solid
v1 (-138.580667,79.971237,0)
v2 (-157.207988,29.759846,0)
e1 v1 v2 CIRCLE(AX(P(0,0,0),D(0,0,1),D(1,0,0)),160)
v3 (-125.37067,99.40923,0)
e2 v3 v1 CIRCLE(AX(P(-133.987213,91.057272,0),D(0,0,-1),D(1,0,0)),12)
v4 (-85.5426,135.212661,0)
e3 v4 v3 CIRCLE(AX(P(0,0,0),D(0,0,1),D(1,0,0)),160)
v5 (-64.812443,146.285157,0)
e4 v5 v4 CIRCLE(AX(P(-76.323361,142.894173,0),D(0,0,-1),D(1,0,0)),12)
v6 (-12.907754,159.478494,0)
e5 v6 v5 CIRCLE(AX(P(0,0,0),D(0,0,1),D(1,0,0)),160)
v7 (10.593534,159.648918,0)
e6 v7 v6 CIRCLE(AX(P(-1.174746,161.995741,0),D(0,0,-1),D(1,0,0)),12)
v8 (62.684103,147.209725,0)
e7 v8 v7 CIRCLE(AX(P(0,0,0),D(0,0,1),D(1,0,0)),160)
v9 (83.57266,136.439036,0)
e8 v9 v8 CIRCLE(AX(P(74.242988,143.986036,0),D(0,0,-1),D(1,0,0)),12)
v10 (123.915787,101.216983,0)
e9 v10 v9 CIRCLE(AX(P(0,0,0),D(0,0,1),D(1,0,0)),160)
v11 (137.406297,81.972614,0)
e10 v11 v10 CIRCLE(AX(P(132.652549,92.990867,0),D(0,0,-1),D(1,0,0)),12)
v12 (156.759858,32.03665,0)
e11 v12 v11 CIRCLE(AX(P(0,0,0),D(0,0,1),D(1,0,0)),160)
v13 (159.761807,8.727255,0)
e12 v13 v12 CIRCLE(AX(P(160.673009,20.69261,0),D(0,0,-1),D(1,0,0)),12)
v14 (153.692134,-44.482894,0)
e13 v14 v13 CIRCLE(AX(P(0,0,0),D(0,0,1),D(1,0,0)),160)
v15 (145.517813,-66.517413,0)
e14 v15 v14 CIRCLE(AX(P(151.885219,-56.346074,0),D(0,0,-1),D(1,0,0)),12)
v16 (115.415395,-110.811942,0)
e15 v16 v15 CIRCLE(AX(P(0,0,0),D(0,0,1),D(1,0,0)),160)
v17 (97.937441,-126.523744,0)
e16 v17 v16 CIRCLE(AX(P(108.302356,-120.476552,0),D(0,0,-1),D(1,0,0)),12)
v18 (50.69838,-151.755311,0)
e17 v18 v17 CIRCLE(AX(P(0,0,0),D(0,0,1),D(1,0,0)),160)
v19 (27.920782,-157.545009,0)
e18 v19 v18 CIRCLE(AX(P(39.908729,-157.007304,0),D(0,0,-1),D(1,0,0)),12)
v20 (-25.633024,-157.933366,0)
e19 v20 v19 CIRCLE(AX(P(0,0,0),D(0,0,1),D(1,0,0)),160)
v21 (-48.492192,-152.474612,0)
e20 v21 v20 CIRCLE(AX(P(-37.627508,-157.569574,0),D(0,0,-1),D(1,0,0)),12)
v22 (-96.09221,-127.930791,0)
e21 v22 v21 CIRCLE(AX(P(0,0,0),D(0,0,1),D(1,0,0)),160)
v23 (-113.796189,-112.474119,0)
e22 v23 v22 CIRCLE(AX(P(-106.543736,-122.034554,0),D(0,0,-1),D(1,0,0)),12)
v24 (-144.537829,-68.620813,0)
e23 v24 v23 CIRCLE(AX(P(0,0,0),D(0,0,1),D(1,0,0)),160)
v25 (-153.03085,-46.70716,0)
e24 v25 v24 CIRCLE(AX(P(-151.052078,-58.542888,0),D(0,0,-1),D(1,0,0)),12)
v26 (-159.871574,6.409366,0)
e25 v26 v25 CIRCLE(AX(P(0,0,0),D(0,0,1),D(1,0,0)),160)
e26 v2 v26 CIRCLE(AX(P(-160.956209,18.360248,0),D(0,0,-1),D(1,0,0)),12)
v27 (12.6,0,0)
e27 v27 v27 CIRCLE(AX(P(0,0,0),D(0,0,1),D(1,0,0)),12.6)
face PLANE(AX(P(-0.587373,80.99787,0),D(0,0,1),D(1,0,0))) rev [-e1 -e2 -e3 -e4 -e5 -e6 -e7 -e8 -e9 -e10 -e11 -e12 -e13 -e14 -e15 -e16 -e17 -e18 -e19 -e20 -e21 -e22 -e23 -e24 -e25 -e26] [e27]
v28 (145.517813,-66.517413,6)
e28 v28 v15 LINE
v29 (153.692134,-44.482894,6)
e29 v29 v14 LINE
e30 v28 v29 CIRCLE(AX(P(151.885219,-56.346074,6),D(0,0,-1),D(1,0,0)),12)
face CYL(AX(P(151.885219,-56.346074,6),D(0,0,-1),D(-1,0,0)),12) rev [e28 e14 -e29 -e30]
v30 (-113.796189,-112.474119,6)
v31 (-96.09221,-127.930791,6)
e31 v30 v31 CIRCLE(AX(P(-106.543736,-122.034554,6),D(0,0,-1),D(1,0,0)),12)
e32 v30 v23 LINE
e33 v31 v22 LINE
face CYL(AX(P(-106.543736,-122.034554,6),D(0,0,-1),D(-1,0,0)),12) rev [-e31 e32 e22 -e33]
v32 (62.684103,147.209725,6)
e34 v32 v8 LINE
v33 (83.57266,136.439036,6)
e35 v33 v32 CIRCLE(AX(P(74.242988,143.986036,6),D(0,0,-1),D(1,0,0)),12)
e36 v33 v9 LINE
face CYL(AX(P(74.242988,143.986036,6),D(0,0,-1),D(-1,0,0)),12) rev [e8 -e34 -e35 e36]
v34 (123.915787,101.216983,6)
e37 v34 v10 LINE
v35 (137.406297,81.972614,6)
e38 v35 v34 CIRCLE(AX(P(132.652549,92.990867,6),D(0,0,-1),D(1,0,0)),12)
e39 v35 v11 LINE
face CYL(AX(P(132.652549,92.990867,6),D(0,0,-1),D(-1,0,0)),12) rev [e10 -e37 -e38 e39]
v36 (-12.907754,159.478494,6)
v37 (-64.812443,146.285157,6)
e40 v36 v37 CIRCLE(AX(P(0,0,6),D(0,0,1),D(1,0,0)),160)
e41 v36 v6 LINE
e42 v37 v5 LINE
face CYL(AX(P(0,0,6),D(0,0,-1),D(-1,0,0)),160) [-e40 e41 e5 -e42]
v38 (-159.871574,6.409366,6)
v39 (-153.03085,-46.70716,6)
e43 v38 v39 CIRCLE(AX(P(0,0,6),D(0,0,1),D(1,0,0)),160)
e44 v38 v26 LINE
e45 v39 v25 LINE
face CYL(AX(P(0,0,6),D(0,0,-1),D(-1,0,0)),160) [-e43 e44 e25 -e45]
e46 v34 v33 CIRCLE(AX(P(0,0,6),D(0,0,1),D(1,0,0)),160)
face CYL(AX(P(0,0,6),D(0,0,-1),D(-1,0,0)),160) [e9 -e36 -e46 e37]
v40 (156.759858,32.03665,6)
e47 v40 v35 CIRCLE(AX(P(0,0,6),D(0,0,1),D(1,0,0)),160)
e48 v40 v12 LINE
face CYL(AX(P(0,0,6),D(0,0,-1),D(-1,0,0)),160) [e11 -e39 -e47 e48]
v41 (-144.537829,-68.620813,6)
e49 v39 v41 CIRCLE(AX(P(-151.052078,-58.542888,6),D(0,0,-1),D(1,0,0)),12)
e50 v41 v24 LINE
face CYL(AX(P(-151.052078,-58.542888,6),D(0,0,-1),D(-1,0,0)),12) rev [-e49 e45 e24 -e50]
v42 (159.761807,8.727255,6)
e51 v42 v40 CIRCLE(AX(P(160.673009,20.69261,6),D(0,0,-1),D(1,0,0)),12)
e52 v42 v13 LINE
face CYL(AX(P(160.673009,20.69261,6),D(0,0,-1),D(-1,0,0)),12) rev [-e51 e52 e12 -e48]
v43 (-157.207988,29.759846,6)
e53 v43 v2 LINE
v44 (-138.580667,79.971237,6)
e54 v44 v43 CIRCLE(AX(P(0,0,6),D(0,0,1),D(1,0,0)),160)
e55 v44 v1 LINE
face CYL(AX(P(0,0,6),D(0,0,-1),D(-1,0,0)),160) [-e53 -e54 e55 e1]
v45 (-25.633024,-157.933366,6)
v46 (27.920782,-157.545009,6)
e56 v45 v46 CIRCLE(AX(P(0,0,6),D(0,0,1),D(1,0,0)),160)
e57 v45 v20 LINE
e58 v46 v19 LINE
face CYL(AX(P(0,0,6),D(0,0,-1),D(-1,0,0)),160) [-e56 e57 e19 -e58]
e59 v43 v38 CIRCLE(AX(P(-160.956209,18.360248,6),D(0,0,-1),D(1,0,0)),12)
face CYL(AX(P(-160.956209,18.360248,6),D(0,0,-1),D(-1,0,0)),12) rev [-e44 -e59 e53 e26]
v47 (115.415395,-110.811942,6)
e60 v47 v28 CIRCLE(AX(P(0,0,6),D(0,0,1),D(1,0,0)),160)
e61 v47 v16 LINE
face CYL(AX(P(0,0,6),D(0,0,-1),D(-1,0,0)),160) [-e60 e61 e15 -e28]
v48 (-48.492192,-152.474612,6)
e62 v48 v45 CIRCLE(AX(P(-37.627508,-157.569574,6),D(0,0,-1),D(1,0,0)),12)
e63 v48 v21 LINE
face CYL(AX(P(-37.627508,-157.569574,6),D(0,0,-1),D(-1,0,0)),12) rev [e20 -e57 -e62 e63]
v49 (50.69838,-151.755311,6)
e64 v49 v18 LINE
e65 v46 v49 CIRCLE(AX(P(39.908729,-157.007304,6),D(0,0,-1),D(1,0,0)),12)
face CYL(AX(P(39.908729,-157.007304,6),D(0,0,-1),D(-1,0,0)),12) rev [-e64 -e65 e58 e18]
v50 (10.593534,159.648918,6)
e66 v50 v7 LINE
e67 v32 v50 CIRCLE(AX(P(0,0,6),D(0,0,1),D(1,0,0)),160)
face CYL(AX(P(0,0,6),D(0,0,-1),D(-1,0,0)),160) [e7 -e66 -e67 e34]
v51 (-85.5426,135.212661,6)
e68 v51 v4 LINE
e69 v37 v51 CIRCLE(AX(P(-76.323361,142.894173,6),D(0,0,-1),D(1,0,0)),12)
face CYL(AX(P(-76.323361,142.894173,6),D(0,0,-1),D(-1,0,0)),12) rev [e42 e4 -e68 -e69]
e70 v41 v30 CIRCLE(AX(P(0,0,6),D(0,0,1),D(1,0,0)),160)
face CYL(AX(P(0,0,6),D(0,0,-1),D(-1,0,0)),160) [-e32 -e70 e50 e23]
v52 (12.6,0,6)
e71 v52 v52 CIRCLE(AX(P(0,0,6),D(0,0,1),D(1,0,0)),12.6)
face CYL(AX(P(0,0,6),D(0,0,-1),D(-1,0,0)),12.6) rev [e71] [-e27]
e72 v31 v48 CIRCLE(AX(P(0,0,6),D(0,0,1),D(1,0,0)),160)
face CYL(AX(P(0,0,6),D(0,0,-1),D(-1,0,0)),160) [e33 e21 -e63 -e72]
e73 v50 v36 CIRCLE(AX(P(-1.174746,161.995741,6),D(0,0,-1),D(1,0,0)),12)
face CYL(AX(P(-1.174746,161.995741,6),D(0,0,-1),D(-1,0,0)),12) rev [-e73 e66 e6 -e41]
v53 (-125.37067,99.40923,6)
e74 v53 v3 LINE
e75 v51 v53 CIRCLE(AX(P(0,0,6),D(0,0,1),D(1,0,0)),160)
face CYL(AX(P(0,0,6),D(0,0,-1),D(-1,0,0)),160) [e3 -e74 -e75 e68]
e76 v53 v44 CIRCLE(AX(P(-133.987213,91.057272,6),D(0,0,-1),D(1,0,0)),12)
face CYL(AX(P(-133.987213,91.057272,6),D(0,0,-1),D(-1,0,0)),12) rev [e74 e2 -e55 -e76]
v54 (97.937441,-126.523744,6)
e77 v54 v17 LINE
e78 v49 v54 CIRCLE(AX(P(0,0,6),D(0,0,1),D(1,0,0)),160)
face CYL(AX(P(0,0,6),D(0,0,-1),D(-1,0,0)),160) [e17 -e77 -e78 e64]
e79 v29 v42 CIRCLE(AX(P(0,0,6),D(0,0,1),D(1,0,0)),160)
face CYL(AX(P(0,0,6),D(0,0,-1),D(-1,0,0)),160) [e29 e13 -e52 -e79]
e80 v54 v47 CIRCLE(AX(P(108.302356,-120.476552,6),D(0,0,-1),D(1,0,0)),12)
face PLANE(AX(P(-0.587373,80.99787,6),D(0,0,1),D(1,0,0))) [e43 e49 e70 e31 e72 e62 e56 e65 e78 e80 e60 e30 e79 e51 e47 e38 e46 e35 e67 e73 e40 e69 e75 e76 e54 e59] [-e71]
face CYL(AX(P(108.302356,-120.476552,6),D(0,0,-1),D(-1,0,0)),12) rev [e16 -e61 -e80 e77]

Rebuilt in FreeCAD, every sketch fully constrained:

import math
import FreeCAD as App
import Part
import Sketcher
from FreeCAD import Vector

doc = App.newDocument("Part")
body = doc.addObject("PartDesign::Body", "Body")

# Sketch on XY plane
sketch1 = body.newObject("Sketcher::SketchObject", "Sketch")
sketch1.AttachmentSupport = (doc.getObject("XY_Plane"), [""])
sketch1.MapMode = "FlatFace"
sketch1.addGeometry(Part.ArcOfCircle(Part.Circle(Vector(0, 0, 0), Vector(0, 0, 1), 160), math.radians(122.32), math.radians(141.59)), False)
sketch1.addGeometry(Part.ArcOfCircle(Part.Circle(Vector(-134, 91, 0), Vector(0, 0, 1), 12), math.radians(-113), math.radians(44)), False)
sketch1.addGeometry(Part.ArcOfCircle(Part.Circle(Vector(0, 0, 0), Vector(0, 0, 1), 160), math.radians(150.01), math.radians(169.28)), False)
sketch1.addGeometry(Part.ArcOfCircle(Part.Circle(Vector(-161, 18, 0), Vector(0, 0, 1), 12), math.radians(-85), math.radians(72)), False)
sketch1.addGeometry(Part.ArcOfCircle(Part.Circle(Vector(0, 0, 0), Vector(0, 0, 1), 160), math.radians(177.7), math.radians(196.97)), False)
sketch1.addGeometry(Part.ArcOfCircle(Part.Circle(Vector(-151, -59, 0), Vector(0, 0, 1), 12), math.radians(-57), math.radians(99)), False)
sketch1.addGeometry(Part.ArcOfCircle(Part.Circle(Vector(0, 0, 0), Vector(0, 0, 1), 160), math.radians(-154.6), math.radians(-135.33)), False)
sketch1.addGeometry(Part.ArcOfCircle(Part.Circle(Vector(-107, -122, 0), Vector(0, 0, 1), 12), math.radians(-29), math.radians(127)), False)
sketch1.addGeometry(Part.ArcOfCircle(Part.Circle(Vector(0, 0, 0), Vector(0, 0, 1), 160), math.radians(-126.91), math.radians(-107.64)), False)
sketch1.addGeometry(Part.ArcOfCircle(Part.Circle(Vector(-38, -158, 0), Vector(0, 0, 1), 12), math.radians(-2), math.radians(155)), False)
sketch1.addGeometry(Part.ArcOfCircle(Part.Circle(Vector(0, 0, 0), Vector(0, 0, 1), 160), math.radians(-99.22), math.radians(-79.95)), False)
sketch1.addGeometry(Part.ArcOfCircle(Part.Circle(Vector(40, -157, 0), Vector(0, 0, 1), 12), math.radians(26), math.radians(183)), False)
sketch1.addGeometry(Part.ArcOfCircle(Part.Circle(Vector(0, 0, 0), Vector(0, 0, 1), 160), math.radians(-71.53), math.radians(-52.26)), False)
sketch1.addGeometry(Part.ArcOfCircle(Part.Circle(Vector(108, -120, 0), Vector(0, 0, 1), 12), math.radians(54), math.radians(210)), False)
sketch1.addGeometry(Part.ArcOfCircle(Part.Circle(Vector(0, 0, 0), Vector(0, 0, 1), 160), math.radians(-43.83), math.radians(-24.57)), False)
sketch1.addGeometry(Part.ArcOfCircle(Part.Circle(Vector(152, -56, 0), Vector(0, 0, 1), 12), math.radians(81), math.radians(238)), False)
sketch1.addGeometry(Part.ArcOfCircle(Part.Circle(Vector(0, 0, 0), Vector(0, 0, 1), 160), math.radians(-16.14), math.radians(3.13)), False)
sketch1.addGeometry(Part.ArcOfCircle(Part.Circle(Vector(161, 21, 0), Vector(0, 0, 1), 12), math.radians(109), math.radians(266)), False)
sketch1.addGeometry(Part.ArcOfCircle(Part.Circle(Vector(0, 0, 0), Vector(0, 0, 1), 160), math.radians(11.55), math.radians(30.82)), False)
sketch1.addGeometry(Part.ArcOfCircle(Part.Circle(Vector(133, 93, 0), Vector(0, 0, 1), 12), math.radians(137), math.radians(293)), False)
sketch1.addGeometry(Part.ArcOfCircle(Part.Circle(Vector(0, 0, 0), Vector(0, 0, 1), 160), math.radians(39.24), math.radians(58.51)), False)
sketch1.addGeometry(Part.ArcOfCircle(Part.Circle(Vector(74, 144, 0), Vector(0, 0, 1), 12), math.radians(164), math.radians(321)), False)
sketch1.addGeometry(Part.ArcOfCircle(Part.Circle(Vector(0, 0, 0), Vector(0, 0, 1), 160), math.radians(66.93), math.radians(86.2)), False)
sketch1.addGeometry(Part.ArcOfCircle(Part.Circle(Vector(-1, 162, 0), Vector(0, 0, 1), 12), math.radians(-168), math.radians(-11)), False)
sketch1.addGeometry(Part.ArcOfCircle(Part.Circle(Vector(0, 0, 0), Vector(0, 0, 1), 160), math.radians(94.63), math.radians(113.9)), False)
sketch1.addGeometry(Part.ArcOfCircle(Part.Circle(Vector(-76, 143, 0), Vector(0, 0, 1), 12), math.radians(-140), math.radians(16)), False)
sketch1.addGeometry(Part.Circle(Vector(0, 0, 0), Vector(0, 0, 1), 13), False)
sketch1.addConstraint(Sketcher.Constraint("Coincident", 0, 2, 1, 2))
sketch1.addConstraint(Sketcher.Constraint("Coincident", 1, 1, 2, 1))
sketch1.addConstraint(Sketcher.Constraint("Coincident", 2, 2, 3, 2))
sketch1.addConstraint(Sketcher.Constraint("Coincident", 3, 1, 4, 1))
sketch1.addConstraint(Sketcher.Constraint("Coincident", 4, 2, 5, 2))
sketch1.addConstraint(Sketcher.Constraint("Coincident", 5, 1, 6, 1))
sketch1.addConstraint(Sketcher.Constraint("Coincident", 6, 2, 7, 2))
sketch1.addConstraint(Sketcher.Constraint("Coincident", 7, 1, 8, 1))
sketch1.addConstraint(Sketcher.Constraint("Coincident", 8, 2, 9, 2))
sketch1.addConstraint(Sketcher.Constraint("Coincident", 9, 1, 10, 1))
sketch1.addConstraint(Sketcher.Constraint("Coincident", 10, 2, 11, 2))
sketch1.addConstraint(Sketcher.Constraint("Coincident", 11, 1, 12, 1))
sketch1.addConstraint(Sketcher.Constraint("Coincident", 12, 2, 13, 2))
sketch1.addConstraint(Sketcher.Constraint("Coincident", 13, 1, 14, 1))
sketch1.addConstraint(Sketcher.Constraint("Coincident", 14, 2, 15, 2))
sketch1.addConstraint(Sketcher.Constraint("Coincident", 15, 1, 16, 1))
sketch1.addConstraint(Sketcher.Constraint("Coincident", 16, 2, 17, 2))
sketch1.addConstraint(Sketcher.Constraint("Coincident", 17, 1, 18, 1))
sketch1.addConstraint(Sketcher.Constraint("Coincident", 18, 2, 19, 2))
sketch1.addConstraint(Sketcher.Constraint("Coincident", 19, 1, 20, 1))
sketch1.addConstraint(Sketcher.Constraint("Coincident", 20, 2, 21, 2))
sketch1.addConstraint(Sketcher.Constraint("Coincident", 21, 1, 22, 1))
sketch1.addConstraint(Sketcher.Constraint("Coincident", 22, 2, 23, 2))
sketch1.addConstraint(Sketcher.Constraint("Coincident", 23, 1, 24, 1))
sketch1.addConstraint(Sketcher.Constraint("Coincident", 24, 2, 25, 2))
sketch1.addConstraint(Sketcher.Constraint("Coincident", 25, 1, 0, 1))
sketch1.addConstraint(Sketcher.Constraint("Coincident", 0, 3, -1, 1))
sketch1.addConstraint(Sketcher.Constraint("Coincident", 2, 3, -1, 1))
sketch1.addConstraint(Sketcher.Constraint("Coincident", 4, 3, -1, 1))
sketch1.addConstraint(Sketcher.Constraint("Coincident", 6, 3, -1, 1))
sketch1.addConstraint(Sketcher.Constraint("Coincident", 8, 3, -1, 1))
sketch1.addConstraint(Sketcher.Constraint("Coincident", 10, 3, -1, 1))
sketch1.addConstraint(Sketcher.Constraint("Coincident", 12, 3, -1, 1))
sketch1.addConstraint(Sketcher.Constraint("Coincident", 14, 3, -1, 1))
sketch1.addConstraint(Sketcher.Constraint("Coincident", 16, 3, -1, 1))
sketch1.addConstraint(Sketcher.Constraint("Coincident", 18, 3, -1, 1))
sketch1.addConstraint(Sketcher.Constraint("Coincident", 20, 3, -1, 1))
sketch1.addConstraint(Sketcher.Constraint("Coincident", 22, 3, -1, 1))
sketch1.addConstraint(Sketcher.Constraint("Coincident", 24, 3, -1, 1))
sketch1.addConstraint(Sketcher.Constraint("Coincident", 26, 3, -1, 1))
sketch1.addConstraint(Sketcher.Constraint("Equal", 0, 2))
sketch1.addConstraint(Sketcher.Constraint("Equal", 1, 3))
sketch1.addConstraint(Sketcher.Constraint("Equal", 2, 4))
sketch1.addConstraint(Sketcher.Constraint("Equal", 3, 5))
sketch1.addConstraint(Sketcher.Constraint("Equal", 4, 6))
sketch1.addConstraint(Sketcher.Constraint("Equal", 5, 7))
sketch1.addConstraint(Sketcher.Constraint("Equal", 6, 8))
sketch1.addConstraint(Sketcher.Constraint("Equal", 7, 9))
sketch1.addConstraint(Sketcher.Constraint("Equal", 8, 10))
sketch1.addConstraint(Sketcher.Constraint("Equal", 9, 11))
sketch1.addConstraint(Sketcher.Constraint("Equal", 10, 12))
sketch1.addConstraint(Sketcher.Constraint("Equal", 11, 13))
sketch1.addConstraint(Sketcher.Constraint("Equal", 12, 14))
sketch1.addConstraint(Sketcher.Constraint("Equal", 13, 15))
sketch1.addConstraint(Sketcher.Constraint("Equal", 14, 16))
sketch1.addConstraint(Sketcher.Constraint("Equal", 15, 17))
sketch1.addConstraint(Sketcher.Constraint("Equal", 16, 18))
sketch1.addConstraint(Sketcher.Constraint("Equal", 17, 19))
sketch1.addConstraint(Sketcher.Constraint("Equal", 18, 20))
sketch1.addConstraint(Sketcher.Constraint("Equal", 19, 21))
sketch1.addConstraint(Sketcher.Constraint("Equal", 20, 22))
sketch1.addConstraint(Sketcher.Constraint("Equal", 21, 23))
sketch1.addConstraint(Sketcher.Constraint("Equal", 22, 24))
sketch1.addConstraint(Sketcher.Constraint("Equal", 23, 25))
sketch1.addConstraint(Sketcher.Constraint("Radius", 0, 160.0))
sketch1.addConstraint(Sketcher.Constraint("Radius", 1, 12.0))
sketch1.addConstraint(Sketcher.Constraint("Diameter", 26, 25.2))
sketch1.addConstraint(Sketcher.Constraint("DistanceY", 20, 2, 21, 3, 7.547001))
sketch1.addConstraint(Sketcher.Constraint("DistanceX", 25, 1, -1, 1, 85.5426))
sketch1.addConstraint(Sketcher.Constraint("DistanceY", 7, 3, 3, 3, 140.394802))
sketch1.addConstraint(Sketcher.Constraint("DistanceY", 1, 3, 25, 3, 51.836901))
sketch1.addConstraint(Sketcher.Constraint("DistanceX", 10, 2, 11, 1, 22.777598))
sketch1.addConstraint(Sketcher.Constraint("DistanceY", 10, 2, 11, 1, 5.789699))
sketch1.addConstraint(Sketcher.Constraint("DistanceY", 12, 2, 13, 1, 15.711801))
sketch1.addConstraint(Sketcher.Constraint("DistanceX", 21, 3, 19, 1, 49.672799))
sketch1.addConstraint(Sketcher.Constraint("DistanceX", 3, 3, -1, 1, 160.956209))
sketch1.addConstraint(Sketcher.Constraint("DistanceY", 5, 3, -1, 1, 58.542888))
sketch1.addConstraint(Sketcher.Constraint("DistanceX", 9, 3, -1, 1, 37.627508))
sketch1.addConstraint(Sketcher.Constraint("DistanceX", -1, 1, 15, 3, 151.885219))
sketch1.addConstraint(Sketcher.Constraint("DistanceX", -1, 1, 17, 3, 160.673009))
sketch1.addConstraint(Sketcher.Constraint("DistanceY", -1, 1, 17, 3, 20.69261))
sketch1.addConstraint(Sketcher.Constraint("DistanceX", -1, 1, 19, 3, 132.652549))
sketch1.addConstraint(Sketcher.Constraint("DistanceX", -1, 1, 21, 3, 74.242988))
sketch1.addConstraint(Sketcher.Constraint("DistanceY", -1, 1, 23, 3, 161.995741))
sketch1.addConstraint(Sketcher.Constraint("DistanceX", 25, 3, -1, 1, 76.323361))
sketch1.addConstraint(Sketcher.Constraint("DistanceX", 0, 2, -1, 1, 125.37067))
sketch1.addConstraint(Sketcher.Constraint("DistanceX", 2, 2, -1, 1, 157.207988))
sketch1.addConstraint(Sketcher.Constraint("DistanceX", 5, 1, -1, 1, 144.537829))
sketch1.addConstraint(Sketcher.Constraint("DistanceX", 6, 2, -1, 1, 113.796189))
sketch1.addConstraint(Sketcher.Constraint("DistanceY", 8, 2, -1, 1, 152.474612))
sketch1.addConstraint(Sketcher.Constraint("DistanceX", -1, 1, 12, 2, 97.937441))
sketch1.addConstraint(Sketcher.Constraint("DistanceY", -1, 1, 22, 2, 159.648918))
sketch1.addConstraint(Sketcher.Constraint("DistanceY", 11, 3, 15, 3, 100.661229))
pad1 = body.newObject("PartDesign::Pad", "Pad")
pad1.Profile = sketch1
pad1.Length = 6

doc.recompute()
